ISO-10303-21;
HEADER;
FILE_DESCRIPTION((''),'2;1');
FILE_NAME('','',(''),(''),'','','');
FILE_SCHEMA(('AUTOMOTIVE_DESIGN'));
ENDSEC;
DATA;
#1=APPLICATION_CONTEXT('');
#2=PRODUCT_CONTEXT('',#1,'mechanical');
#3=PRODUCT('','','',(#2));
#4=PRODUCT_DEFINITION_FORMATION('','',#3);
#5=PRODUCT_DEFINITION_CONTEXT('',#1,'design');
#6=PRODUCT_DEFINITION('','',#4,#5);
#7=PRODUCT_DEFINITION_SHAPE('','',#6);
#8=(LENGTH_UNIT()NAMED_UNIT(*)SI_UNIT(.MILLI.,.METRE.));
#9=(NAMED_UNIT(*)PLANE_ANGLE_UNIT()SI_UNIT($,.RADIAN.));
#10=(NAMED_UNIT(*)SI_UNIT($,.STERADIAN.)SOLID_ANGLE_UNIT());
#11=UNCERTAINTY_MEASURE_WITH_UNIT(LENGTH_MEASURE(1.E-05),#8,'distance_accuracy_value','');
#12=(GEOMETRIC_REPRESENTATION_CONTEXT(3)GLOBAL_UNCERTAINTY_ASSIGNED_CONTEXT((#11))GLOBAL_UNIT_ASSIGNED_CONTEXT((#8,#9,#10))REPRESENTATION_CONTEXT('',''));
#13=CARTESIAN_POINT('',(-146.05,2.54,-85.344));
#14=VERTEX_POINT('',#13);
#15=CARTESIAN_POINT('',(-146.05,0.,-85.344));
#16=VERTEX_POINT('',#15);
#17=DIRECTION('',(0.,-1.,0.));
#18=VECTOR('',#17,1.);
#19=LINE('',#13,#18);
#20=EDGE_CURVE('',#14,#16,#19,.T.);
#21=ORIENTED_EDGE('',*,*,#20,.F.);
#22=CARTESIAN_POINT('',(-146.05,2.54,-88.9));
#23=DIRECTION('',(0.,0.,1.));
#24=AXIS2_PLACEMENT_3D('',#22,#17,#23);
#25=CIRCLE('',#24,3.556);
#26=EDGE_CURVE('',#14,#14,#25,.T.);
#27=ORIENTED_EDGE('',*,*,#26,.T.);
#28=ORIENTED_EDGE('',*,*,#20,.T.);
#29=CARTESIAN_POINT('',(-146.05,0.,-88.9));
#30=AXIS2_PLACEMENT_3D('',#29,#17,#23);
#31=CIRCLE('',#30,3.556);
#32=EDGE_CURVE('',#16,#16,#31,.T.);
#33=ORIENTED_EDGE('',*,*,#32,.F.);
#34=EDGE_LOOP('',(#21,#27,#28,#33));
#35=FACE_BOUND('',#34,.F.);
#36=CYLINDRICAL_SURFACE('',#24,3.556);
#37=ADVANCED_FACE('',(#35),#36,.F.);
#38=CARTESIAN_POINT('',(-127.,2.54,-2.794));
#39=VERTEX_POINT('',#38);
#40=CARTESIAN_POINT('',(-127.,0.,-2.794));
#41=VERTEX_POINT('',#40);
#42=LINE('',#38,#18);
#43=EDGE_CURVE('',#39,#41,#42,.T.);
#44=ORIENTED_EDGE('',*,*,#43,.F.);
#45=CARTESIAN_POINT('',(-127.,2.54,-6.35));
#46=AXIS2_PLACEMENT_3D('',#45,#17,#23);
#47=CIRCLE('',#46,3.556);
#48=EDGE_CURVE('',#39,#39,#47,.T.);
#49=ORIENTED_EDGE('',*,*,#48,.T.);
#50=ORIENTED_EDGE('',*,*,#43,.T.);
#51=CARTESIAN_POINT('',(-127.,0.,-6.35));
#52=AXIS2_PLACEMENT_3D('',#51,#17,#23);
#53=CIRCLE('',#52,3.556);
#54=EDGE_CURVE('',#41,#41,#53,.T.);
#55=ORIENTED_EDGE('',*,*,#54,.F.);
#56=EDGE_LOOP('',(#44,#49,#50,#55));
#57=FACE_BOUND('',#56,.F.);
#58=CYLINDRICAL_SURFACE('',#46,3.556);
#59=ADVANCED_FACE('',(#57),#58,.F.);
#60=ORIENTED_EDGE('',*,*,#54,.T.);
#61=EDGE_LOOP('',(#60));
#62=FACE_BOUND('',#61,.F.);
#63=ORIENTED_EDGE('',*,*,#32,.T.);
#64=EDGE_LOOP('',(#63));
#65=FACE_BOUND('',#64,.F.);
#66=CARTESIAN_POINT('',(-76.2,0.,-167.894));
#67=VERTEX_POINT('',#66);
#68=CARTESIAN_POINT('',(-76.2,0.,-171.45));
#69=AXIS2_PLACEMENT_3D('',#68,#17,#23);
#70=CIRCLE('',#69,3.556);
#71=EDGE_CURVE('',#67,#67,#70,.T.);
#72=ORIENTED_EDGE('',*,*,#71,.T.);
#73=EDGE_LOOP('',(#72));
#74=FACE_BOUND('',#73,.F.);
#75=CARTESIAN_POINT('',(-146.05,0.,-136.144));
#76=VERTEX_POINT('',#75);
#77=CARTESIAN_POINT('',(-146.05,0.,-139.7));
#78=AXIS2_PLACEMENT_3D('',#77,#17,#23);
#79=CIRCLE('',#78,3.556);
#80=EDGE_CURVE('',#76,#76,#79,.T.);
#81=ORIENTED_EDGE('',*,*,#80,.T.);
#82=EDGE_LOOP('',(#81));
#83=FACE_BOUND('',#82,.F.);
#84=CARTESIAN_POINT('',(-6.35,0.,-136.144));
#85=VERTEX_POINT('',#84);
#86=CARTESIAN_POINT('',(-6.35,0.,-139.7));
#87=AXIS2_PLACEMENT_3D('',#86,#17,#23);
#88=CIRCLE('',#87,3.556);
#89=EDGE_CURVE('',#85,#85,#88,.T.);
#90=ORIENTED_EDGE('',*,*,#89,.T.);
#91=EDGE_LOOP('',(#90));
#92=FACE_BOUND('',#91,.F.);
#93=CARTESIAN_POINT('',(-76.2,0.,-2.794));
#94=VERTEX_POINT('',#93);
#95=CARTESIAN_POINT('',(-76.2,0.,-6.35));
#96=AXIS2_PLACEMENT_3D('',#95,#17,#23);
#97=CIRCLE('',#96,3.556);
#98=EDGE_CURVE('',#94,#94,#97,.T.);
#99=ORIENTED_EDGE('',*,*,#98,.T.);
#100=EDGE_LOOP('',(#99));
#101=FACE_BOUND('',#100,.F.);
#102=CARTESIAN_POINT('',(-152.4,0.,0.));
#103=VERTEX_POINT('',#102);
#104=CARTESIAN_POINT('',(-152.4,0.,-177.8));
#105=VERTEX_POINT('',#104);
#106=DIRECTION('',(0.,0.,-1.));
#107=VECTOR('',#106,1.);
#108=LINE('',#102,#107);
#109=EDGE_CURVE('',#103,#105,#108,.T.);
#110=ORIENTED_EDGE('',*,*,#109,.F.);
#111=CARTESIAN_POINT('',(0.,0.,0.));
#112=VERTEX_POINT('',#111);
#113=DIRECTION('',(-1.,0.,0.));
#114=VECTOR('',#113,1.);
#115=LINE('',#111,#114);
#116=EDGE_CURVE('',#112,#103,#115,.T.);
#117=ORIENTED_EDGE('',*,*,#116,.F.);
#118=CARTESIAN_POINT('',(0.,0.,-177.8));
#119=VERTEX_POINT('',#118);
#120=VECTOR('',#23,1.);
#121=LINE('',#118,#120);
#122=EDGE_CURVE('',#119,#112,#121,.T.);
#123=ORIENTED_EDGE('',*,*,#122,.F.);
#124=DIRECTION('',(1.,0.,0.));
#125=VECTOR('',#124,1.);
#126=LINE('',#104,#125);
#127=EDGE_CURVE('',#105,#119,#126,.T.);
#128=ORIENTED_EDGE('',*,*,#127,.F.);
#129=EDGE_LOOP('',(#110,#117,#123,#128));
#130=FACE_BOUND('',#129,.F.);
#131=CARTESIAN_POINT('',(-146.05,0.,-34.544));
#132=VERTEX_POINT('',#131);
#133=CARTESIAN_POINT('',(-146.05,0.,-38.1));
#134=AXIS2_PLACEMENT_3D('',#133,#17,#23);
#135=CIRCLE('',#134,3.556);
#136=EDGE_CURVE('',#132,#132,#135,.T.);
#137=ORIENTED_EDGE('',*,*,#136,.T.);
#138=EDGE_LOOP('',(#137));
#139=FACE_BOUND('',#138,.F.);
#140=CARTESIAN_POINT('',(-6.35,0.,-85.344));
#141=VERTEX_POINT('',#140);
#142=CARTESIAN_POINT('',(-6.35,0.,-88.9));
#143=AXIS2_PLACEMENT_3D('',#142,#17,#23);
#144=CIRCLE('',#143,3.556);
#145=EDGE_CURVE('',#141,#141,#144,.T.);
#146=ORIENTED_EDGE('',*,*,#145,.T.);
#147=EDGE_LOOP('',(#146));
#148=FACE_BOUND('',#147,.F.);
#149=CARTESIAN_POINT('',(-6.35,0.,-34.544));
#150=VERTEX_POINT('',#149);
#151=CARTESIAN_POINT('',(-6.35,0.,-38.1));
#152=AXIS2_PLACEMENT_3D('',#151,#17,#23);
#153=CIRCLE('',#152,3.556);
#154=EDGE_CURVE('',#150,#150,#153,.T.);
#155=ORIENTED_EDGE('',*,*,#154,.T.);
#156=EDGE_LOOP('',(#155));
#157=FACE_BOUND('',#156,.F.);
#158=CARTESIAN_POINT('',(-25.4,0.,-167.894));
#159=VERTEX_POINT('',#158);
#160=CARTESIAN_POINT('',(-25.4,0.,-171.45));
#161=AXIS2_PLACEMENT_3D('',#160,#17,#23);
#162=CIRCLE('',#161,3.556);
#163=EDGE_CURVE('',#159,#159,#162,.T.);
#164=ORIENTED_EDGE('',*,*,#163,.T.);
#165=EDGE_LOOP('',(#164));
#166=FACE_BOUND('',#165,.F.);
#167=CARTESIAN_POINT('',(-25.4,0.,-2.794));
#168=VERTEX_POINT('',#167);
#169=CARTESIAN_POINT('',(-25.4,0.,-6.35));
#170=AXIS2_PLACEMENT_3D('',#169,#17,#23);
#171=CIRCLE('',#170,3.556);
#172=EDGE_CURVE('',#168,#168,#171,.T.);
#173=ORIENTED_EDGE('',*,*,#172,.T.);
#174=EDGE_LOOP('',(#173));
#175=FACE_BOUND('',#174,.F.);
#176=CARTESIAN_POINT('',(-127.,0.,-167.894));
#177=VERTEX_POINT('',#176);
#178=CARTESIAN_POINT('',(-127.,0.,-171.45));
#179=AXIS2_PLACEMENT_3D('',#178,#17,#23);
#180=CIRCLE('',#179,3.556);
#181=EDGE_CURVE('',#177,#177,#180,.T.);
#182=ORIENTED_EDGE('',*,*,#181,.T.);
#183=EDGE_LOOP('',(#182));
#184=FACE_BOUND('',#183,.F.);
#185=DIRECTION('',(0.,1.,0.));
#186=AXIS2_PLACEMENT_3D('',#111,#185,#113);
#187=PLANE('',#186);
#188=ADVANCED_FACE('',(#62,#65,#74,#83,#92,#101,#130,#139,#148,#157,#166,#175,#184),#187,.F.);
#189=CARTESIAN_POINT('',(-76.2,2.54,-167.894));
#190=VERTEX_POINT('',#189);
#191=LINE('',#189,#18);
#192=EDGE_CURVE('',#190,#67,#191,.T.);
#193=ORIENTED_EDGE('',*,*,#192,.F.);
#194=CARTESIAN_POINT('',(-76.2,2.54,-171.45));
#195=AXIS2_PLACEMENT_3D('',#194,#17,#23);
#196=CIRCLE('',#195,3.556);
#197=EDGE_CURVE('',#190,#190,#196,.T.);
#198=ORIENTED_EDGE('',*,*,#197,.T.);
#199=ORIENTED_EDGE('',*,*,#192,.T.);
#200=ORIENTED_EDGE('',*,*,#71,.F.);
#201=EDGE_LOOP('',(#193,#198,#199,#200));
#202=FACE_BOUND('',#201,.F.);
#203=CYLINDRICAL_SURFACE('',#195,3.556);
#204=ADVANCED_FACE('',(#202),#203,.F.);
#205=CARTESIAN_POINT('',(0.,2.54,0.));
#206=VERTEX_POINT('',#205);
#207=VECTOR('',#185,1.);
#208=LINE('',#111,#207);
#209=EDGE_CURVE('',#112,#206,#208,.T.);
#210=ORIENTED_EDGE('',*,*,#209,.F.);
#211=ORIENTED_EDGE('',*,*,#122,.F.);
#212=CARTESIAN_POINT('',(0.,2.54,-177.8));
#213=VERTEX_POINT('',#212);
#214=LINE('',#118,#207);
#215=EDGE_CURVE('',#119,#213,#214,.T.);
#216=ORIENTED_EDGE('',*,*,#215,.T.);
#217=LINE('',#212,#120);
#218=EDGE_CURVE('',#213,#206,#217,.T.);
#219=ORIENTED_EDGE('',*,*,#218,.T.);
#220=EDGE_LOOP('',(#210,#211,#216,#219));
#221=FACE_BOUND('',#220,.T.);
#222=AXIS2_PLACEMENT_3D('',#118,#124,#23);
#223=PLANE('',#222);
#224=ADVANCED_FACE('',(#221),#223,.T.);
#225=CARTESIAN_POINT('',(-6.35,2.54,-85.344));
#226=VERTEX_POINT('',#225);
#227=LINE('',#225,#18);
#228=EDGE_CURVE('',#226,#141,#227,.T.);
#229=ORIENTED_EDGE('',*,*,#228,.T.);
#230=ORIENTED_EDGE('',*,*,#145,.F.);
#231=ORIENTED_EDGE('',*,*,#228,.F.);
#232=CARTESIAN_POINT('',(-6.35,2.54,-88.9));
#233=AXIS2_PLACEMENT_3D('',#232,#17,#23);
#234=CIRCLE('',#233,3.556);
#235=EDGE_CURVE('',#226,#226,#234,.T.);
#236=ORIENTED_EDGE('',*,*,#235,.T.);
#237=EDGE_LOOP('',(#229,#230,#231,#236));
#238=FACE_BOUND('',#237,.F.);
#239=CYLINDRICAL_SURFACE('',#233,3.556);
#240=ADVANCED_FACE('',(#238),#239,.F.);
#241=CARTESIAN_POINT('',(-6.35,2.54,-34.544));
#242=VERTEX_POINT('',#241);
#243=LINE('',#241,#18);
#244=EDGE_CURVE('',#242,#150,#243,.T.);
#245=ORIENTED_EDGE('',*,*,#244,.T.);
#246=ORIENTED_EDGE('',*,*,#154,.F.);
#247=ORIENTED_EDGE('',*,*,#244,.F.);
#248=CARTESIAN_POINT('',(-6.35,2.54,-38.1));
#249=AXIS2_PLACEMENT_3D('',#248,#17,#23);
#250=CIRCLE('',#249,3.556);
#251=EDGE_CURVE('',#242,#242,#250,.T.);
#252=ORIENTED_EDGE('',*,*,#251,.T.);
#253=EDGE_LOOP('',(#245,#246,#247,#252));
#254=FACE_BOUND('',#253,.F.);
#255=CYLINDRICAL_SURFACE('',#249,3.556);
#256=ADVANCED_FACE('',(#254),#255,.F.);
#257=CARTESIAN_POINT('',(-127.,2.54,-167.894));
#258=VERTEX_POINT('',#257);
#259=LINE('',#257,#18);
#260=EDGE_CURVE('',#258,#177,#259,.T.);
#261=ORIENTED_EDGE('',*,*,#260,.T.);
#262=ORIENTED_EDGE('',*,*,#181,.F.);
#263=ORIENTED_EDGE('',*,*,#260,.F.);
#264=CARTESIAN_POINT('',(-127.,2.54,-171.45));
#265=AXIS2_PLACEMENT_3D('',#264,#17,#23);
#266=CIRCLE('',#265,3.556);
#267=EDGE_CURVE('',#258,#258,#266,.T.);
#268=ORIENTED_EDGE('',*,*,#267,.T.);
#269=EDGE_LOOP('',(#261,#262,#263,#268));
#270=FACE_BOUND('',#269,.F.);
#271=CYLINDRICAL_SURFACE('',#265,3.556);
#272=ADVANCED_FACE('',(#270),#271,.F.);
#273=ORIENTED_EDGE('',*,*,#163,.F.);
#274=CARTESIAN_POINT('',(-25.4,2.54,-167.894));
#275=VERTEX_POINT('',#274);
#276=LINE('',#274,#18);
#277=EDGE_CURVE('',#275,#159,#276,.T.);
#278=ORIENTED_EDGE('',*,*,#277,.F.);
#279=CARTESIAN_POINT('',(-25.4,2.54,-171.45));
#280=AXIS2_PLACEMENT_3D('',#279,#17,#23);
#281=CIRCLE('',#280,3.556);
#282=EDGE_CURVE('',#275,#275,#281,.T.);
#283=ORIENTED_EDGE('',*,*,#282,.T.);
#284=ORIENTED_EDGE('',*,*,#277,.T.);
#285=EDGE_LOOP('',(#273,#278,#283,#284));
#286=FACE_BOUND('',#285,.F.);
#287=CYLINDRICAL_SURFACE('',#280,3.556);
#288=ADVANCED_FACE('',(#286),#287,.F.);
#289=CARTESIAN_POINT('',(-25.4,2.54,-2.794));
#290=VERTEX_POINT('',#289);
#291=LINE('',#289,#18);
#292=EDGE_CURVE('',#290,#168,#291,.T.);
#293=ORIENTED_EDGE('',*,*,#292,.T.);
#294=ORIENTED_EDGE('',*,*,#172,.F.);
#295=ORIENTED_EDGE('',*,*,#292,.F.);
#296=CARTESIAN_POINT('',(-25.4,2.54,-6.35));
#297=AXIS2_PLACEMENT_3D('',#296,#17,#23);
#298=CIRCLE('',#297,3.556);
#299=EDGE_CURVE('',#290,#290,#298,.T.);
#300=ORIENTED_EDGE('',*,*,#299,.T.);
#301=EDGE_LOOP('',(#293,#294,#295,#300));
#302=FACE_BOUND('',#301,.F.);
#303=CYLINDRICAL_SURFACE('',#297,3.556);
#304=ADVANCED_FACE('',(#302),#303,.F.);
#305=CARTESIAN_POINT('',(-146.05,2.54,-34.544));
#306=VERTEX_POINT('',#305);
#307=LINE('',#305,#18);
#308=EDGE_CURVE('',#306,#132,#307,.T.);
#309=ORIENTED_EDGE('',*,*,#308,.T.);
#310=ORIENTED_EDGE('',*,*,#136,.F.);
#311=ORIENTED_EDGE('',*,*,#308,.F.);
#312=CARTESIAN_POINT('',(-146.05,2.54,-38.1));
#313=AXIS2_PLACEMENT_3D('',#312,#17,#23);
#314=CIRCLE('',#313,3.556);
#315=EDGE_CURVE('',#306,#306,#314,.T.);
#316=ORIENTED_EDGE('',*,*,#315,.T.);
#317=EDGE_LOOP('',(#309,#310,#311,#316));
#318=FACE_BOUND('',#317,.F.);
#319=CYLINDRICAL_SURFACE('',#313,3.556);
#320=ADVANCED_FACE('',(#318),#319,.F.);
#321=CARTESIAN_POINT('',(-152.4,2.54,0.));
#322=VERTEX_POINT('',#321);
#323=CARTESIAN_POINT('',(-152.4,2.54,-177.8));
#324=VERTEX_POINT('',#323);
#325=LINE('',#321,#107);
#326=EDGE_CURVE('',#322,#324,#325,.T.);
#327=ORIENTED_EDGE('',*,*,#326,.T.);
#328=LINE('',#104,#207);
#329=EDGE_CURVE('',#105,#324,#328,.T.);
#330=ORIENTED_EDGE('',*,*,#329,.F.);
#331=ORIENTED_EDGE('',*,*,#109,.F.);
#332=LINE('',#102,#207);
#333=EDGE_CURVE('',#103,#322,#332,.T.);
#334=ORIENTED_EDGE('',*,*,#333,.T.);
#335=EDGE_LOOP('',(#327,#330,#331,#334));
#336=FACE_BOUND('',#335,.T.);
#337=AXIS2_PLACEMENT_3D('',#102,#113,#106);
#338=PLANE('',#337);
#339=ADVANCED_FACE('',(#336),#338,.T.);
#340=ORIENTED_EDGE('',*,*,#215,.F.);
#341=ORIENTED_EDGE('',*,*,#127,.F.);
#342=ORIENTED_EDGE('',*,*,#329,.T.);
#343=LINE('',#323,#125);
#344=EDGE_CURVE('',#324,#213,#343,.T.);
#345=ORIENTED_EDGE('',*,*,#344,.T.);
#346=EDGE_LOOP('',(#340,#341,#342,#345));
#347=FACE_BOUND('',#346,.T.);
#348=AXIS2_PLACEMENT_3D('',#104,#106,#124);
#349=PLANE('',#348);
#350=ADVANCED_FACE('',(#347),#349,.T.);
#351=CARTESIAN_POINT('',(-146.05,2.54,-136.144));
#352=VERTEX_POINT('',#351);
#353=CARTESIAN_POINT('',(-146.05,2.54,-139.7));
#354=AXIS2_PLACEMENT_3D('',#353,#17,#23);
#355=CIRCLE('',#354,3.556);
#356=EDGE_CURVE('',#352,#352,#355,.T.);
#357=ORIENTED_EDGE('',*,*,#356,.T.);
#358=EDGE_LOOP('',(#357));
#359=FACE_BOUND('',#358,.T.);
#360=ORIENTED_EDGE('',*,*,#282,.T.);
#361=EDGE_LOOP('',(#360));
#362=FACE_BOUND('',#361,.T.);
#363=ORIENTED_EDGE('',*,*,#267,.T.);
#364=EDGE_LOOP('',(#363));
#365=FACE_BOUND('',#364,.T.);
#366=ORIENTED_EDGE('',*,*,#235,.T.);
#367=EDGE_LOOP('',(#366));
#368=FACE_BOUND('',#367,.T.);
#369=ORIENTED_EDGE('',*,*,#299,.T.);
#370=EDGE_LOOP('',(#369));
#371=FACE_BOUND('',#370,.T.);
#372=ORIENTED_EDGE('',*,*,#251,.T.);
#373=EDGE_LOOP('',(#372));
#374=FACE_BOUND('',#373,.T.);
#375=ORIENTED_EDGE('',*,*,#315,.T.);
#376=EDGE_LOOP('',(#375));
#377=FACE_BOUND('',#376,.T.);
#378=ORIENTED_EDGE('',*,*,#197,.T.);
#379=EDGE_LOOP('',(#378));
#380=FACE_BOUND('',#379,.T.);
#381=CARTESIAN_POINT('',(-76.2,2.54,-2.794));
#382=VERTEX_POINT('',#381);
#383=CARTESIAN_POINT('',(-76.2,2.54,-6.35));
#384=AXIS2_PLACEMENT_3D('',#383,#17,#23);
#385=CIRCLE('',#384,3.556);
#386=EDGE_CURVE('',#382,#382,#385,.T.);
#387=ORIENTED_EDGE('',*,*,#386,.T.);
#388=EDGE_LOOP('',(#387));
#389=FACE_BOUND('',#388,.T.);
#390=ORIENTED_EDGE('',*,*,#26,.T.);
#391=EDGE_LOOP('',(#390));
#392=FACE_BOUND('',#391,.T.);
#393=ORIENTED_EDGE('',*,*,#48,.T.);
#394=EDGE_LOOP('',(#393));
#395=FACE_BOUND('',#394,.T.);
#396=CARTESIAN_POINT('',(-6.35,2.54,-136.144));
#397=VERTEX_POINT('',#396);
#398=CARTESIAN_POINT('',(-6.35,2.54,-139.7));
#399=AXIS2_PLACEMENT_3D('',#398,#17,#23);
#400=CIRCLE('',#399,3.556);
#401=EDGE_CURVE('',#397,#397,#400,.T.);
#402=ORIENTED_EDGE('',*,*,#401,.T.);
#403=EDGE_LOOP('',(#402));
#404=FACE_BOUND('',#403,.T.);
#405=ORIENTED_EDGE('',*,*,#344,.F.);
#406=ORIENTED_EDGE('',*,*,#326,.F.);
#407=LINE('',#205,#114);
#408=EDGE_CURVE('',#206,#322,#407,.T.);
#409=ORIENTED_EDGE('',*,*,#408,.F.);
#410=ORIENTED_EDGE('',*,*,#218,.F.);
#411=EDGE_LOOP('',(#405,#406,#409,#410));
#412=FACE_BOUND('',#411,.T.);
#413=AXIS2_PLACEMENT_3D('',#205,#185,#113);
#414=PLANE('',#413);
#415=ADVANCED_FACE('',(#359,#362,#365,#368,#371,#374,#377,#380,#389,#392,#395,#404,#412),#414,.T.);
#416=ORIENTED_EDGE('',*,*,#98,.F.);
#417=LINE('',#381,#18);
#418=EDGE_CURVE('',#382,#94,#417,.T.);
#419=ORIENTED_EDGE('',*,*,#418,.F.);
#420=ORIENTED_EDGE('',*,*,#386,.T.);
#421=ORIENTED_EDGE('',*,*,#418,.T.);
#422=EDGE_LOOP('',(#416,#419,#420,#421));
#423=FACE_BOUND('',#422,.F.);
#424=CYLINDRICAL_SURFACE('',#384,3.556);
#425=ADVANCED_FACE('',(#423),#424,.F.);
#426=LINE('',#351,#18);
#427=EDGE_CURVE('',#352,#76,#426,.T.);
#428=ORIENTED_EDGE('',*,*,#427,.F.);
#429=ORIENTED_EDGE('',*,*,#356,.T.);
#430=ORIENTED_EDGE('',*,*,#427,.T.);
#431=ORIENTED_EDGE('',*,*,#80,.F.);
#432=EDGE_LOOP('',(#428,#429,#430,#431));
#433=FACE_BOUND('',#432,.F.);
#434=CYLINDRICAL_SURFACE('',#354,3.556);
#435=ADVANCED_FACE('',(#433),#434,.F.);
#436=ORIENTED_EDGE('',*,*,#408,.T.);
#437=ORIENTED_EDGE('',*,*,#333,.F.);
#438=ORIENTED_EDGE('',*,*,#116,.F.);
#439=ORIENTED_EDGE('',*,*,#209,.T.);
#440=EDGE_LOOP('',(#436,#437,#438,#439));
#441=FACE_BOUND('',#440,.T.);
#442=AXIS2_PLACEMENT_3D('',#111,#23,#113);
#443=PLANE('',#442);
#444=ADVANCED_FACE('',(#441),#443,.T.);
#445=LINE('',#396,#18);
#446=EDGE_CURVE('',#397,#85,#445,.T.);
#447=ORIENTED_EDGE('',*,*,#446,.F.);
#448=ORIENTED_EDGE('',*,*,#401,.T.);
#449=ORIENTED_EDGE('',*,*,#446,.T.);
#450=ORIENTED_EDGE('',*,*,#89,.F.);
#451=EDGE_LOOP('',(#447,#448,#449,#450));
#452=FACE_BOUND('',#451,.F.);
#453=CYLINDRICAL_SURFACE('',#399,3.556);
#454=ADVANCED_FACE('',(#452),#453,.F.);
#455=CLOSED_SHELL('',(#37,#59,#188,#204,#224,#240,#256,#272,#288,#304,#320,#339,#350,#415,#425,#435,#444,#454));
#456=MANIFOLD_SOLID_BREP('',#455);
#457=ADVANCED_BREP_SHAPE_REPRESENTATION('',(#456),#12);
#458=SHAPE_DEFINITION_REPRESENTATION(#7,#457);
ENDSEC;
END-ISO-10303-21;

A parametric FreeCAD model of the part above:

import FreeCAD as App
import Part
import Sketcher
from FreeCAD import Vector
Q = App.Units.Quantity


def add_polygon(sketch, points):
    """Adds a closed chain of lines whose ends are joined by coincident constraints."""
    first, n = sketch.GeometryCount, len(points)
    for a, b in zip(points, points[1:] + points[:1]):
        sketch.addGeometry(Part.LineSegment(App.Vector(*a, 0), App.Vector(*b, 0)), False)
    for i in range(n):
        sketch.addConstraint(Sketcher.Constraint("Coincident", first + i, 2, first + (i + 1) % n, 1))

doc = App.newDocument("Part")
body = doc.addObject("PartDesign::Body", "Body")

sketch1 = doc.addObject("Sketcher::SketchObject", "Sketch")
body.addObject(sketch1)
sketch1.AttachmentSupport = (doc.XZ_Plane, [""])
sketch1.MapMode = "FlatFace"
add_polygon(sketch1, [(-152.4, 0), (0, 0), (0, -177.8), (-152.4, -177.8)])
sketch1.addConstraint(Sketcher.Constraint("Horizontal", 0))
sketch1.addConstraint(Sketcher.Constraint("Vertical", 1))
sketch1.addConstraint(Sketcher.Constraint("Horizontal", 2))
sketch1.addConstraint(Sketcher.Constraint("Vertical", 3))
sketch1.addConstraint(Sketcher.Constraint("Coincident", 0, 2, -1, 1))
sketch1.addConstraint(Sketcher.Constraint("DistanceX", 0, 1, 0, 2, Q("6 in")))
sketch1.addConstraint(Sketcher.Constraint("DistanceY", 1, 2, 1, 1, Q("7 in")))
pad1 = doc.addObject("PartDesign::Pad", "Pad")
body.addObject(pad1)
pad1.Profile = sketch1
pad1.Length = Q("0.1 in")
pad1.Reversed = True

sketch2 = doc.addObject("Sketcher::SketchObject", "Sketch001")
body.addObject(sketch2)
sketch2.AttachmentSupport = (doc.XZ_Plane, [""])
sketch2.MapMode = "FlatFace"
sketch2.AttachmentOffset = App.Placement(Vector(0, 0, -0.1 * 25.4), App.Rotation())
sketch2.addGeometry(Part.Circle(Vector(-127, -6.35, 0), Vector(0, 0, 1), 3.556), False)
sketch2.addGeometry(Part.Circle(Vector(-76.2, -6.35, 0), Vector(0, 0, 1), 3.556), False)
sketch2.addGeometry(Part.Circle(Vector(-25.4, -6.35, 0), Vector(0, 0, 1), 3.556), False)
sketch2.addGeometry(Part.Circle(Vector(-127, -171.45, 0), Vector(0, 0, 1), 3.556), False)
sketch2.addGeometry(Part.Circle(Vector(-76.2, -171.45, 0), Vector(0, 0, 1), 3.556), False)
sketch2.addGeometry(Part.Circle(Vector(-25.4, -171.45, 0), Vector(0, 0, 1), 3.556), False)
sketch2.addGeometry(Part.Circle(Vector(-146.05, -38.1, 0), Vector(0, 0, 1), 3.556), False)
sketch2.addGeometry(Part.Circle(Vector(-146.05, -88.9, 0), Vector(0, 0, 1), 3.556), False)
sketch2.addGeometry(Part.Circle(Vector(-146.05, -139.7, 0), Vector(0, 0, 1), 3.556), False)
sketch2.addGeometry(Part.Circle(Vector(-6.35, -38.1, 0), Vector(0, 0, 1), 3.556), False)
sketch2.addGeometry(Part.Circle(Vector(-6.35, -88.9, 0), Vector(0, 0, 1), 3.556), False)
sketch2.addGeometry(Part.Circle(Vector(-6.35, -139.7, 0), Vector(0, 0, 1), 3.556), False)
sketch2.addConstraint(Sketcher.Constraint("Equal", 0, 1))
sketch2.addConstraint(Sketcher.Constraint("Equal", 1, 2))
sketch2.addConstraint(Sketcher.Constraint("Equal", 2, 3))
sketch2.addConstraint(Sketcher.Constraint("Equal", 3, 4))
sketch2.addConstraint(Sketcher.Constraint("Equal", 4, 5))
sketch2.addConstraint(Sketcher.Constraint("Equal", 5, 6))
sketch2.addConstraint(Sketcher.Constraint("Equal", 6, 7))
sketch2.addConstraint(Sketcher.Constraint("Equal", 7, 8))
sketch2.addConstraint(Sketcher.Constraint("Equal", 8, 9))
sketch2.addConstraint(Sketcher.Constraint("Equal", 9, 10))
sketch2.addConstraint(Sketcher.Constraint("Equal", 10, 11))
sketch2.addConstraint(Sketcher.Constraint("Horizontal", 0, 3, 1, 3))
sketch2.addConstraint(Sketcher.Constraint("Horizontal", 1, 3, 2, 3))
sketch2.addConstraint(Sketcher.Constraint("Horizontal", 3, 3, 4, 3))
sketch2.addConstraint(Sketcher.Constraint("Horizontal", 4, 3, 5, 3))
sketch2.addConstraint(Sketcher.Constraint("Horizontal", 6, 3, 9, 3))
sketch2.addConstraint(Sketcher.Constraint("Horizontal", 7, 3, 10, 3))
sketch2.addConstraint(Sketcher.Constraint("Horizontal", 8, 3, 11, 3))
sketch2.addConstraint(Sketcher.Constraint("Vertical", 0, 3, 3, 3))
sketch2.addConstraint(Sketcher.Constraint("Vertical", 1, 3, 4, 3))
sketch2.addConstraint(Sketcher.Constraint("Vertical", 2, 3, 5, 3))
sketch2.addConstraint(Sketcher.Constraint("Vertical", 6, 3, 7, 3))
sketch2.addConstraint(Sketcher.Constraint("Vertical", 7, 3, 8, 3))
sketch2.addConstraint(Sketcher.Constraint("Vertical", 9, 3, 10, 3))
sketch2.addConstraint(Sketcher.Constraint("Vertical", 10, 3, 11, 3))
sketch2.addConstraint(Sketcher.Constraint("Diameter", 0, Q("0.28 in")))
sketch2.addConstraint(Sketcher.Constraint("DistanceX", 0, 3, -1, 1, Q("5 in")))
sketch2.addConstraint(Sketcher.Constraint("DistanceX", 1, 3, -1, 1, Q("3 in")))
sketch2.addConstraint(Sketcher.Constraint("DistanceX", 2, 3, -1, 1, Q("1 in")))
sketch2.addConstraint(Sketcher.Constraint("DistanceY", 7, 3, 6, 3, Q("2 in")))
sketch2.addConstraint(Sketcher.Constraint("DistanceY", 8, 3, 7, 3, Q("2 in")))
sketch2.addConstraint(Sketcher.Constraint("DistanceY", 6, 3, -1, 1, Q("1.5 in")))
sketch2.addConstraint(Sketcher.Constraint("DistanceY", 3, 3, 0, 3, Q("6.5 in")))
sketch2.addConstraint(Sketcher.Constraint("DistanceX", 6, 3, 9, 3, Q("5.5 in")))
sketch2.addConstraint(Sketcher.Constraint("DistanceY", 0, 3, -1, 1, Q("0.25 in")))
sketch2.addConstraint(Sketcher.Constraint("DistanceX", 6, 3, -1, 1, Q("5.75 in")))
doc.recompute()
hole = doc.addObject("PartDesign::Hole", "Hole")
body.addObject(hole)
hole.Profile = sketch2
hole.ThreadType = "None"
hole.Diameter = Q("0.28 in")
hole.DepthType = "ThroughAll"
hole.Reversed = True

doc.recompute()
